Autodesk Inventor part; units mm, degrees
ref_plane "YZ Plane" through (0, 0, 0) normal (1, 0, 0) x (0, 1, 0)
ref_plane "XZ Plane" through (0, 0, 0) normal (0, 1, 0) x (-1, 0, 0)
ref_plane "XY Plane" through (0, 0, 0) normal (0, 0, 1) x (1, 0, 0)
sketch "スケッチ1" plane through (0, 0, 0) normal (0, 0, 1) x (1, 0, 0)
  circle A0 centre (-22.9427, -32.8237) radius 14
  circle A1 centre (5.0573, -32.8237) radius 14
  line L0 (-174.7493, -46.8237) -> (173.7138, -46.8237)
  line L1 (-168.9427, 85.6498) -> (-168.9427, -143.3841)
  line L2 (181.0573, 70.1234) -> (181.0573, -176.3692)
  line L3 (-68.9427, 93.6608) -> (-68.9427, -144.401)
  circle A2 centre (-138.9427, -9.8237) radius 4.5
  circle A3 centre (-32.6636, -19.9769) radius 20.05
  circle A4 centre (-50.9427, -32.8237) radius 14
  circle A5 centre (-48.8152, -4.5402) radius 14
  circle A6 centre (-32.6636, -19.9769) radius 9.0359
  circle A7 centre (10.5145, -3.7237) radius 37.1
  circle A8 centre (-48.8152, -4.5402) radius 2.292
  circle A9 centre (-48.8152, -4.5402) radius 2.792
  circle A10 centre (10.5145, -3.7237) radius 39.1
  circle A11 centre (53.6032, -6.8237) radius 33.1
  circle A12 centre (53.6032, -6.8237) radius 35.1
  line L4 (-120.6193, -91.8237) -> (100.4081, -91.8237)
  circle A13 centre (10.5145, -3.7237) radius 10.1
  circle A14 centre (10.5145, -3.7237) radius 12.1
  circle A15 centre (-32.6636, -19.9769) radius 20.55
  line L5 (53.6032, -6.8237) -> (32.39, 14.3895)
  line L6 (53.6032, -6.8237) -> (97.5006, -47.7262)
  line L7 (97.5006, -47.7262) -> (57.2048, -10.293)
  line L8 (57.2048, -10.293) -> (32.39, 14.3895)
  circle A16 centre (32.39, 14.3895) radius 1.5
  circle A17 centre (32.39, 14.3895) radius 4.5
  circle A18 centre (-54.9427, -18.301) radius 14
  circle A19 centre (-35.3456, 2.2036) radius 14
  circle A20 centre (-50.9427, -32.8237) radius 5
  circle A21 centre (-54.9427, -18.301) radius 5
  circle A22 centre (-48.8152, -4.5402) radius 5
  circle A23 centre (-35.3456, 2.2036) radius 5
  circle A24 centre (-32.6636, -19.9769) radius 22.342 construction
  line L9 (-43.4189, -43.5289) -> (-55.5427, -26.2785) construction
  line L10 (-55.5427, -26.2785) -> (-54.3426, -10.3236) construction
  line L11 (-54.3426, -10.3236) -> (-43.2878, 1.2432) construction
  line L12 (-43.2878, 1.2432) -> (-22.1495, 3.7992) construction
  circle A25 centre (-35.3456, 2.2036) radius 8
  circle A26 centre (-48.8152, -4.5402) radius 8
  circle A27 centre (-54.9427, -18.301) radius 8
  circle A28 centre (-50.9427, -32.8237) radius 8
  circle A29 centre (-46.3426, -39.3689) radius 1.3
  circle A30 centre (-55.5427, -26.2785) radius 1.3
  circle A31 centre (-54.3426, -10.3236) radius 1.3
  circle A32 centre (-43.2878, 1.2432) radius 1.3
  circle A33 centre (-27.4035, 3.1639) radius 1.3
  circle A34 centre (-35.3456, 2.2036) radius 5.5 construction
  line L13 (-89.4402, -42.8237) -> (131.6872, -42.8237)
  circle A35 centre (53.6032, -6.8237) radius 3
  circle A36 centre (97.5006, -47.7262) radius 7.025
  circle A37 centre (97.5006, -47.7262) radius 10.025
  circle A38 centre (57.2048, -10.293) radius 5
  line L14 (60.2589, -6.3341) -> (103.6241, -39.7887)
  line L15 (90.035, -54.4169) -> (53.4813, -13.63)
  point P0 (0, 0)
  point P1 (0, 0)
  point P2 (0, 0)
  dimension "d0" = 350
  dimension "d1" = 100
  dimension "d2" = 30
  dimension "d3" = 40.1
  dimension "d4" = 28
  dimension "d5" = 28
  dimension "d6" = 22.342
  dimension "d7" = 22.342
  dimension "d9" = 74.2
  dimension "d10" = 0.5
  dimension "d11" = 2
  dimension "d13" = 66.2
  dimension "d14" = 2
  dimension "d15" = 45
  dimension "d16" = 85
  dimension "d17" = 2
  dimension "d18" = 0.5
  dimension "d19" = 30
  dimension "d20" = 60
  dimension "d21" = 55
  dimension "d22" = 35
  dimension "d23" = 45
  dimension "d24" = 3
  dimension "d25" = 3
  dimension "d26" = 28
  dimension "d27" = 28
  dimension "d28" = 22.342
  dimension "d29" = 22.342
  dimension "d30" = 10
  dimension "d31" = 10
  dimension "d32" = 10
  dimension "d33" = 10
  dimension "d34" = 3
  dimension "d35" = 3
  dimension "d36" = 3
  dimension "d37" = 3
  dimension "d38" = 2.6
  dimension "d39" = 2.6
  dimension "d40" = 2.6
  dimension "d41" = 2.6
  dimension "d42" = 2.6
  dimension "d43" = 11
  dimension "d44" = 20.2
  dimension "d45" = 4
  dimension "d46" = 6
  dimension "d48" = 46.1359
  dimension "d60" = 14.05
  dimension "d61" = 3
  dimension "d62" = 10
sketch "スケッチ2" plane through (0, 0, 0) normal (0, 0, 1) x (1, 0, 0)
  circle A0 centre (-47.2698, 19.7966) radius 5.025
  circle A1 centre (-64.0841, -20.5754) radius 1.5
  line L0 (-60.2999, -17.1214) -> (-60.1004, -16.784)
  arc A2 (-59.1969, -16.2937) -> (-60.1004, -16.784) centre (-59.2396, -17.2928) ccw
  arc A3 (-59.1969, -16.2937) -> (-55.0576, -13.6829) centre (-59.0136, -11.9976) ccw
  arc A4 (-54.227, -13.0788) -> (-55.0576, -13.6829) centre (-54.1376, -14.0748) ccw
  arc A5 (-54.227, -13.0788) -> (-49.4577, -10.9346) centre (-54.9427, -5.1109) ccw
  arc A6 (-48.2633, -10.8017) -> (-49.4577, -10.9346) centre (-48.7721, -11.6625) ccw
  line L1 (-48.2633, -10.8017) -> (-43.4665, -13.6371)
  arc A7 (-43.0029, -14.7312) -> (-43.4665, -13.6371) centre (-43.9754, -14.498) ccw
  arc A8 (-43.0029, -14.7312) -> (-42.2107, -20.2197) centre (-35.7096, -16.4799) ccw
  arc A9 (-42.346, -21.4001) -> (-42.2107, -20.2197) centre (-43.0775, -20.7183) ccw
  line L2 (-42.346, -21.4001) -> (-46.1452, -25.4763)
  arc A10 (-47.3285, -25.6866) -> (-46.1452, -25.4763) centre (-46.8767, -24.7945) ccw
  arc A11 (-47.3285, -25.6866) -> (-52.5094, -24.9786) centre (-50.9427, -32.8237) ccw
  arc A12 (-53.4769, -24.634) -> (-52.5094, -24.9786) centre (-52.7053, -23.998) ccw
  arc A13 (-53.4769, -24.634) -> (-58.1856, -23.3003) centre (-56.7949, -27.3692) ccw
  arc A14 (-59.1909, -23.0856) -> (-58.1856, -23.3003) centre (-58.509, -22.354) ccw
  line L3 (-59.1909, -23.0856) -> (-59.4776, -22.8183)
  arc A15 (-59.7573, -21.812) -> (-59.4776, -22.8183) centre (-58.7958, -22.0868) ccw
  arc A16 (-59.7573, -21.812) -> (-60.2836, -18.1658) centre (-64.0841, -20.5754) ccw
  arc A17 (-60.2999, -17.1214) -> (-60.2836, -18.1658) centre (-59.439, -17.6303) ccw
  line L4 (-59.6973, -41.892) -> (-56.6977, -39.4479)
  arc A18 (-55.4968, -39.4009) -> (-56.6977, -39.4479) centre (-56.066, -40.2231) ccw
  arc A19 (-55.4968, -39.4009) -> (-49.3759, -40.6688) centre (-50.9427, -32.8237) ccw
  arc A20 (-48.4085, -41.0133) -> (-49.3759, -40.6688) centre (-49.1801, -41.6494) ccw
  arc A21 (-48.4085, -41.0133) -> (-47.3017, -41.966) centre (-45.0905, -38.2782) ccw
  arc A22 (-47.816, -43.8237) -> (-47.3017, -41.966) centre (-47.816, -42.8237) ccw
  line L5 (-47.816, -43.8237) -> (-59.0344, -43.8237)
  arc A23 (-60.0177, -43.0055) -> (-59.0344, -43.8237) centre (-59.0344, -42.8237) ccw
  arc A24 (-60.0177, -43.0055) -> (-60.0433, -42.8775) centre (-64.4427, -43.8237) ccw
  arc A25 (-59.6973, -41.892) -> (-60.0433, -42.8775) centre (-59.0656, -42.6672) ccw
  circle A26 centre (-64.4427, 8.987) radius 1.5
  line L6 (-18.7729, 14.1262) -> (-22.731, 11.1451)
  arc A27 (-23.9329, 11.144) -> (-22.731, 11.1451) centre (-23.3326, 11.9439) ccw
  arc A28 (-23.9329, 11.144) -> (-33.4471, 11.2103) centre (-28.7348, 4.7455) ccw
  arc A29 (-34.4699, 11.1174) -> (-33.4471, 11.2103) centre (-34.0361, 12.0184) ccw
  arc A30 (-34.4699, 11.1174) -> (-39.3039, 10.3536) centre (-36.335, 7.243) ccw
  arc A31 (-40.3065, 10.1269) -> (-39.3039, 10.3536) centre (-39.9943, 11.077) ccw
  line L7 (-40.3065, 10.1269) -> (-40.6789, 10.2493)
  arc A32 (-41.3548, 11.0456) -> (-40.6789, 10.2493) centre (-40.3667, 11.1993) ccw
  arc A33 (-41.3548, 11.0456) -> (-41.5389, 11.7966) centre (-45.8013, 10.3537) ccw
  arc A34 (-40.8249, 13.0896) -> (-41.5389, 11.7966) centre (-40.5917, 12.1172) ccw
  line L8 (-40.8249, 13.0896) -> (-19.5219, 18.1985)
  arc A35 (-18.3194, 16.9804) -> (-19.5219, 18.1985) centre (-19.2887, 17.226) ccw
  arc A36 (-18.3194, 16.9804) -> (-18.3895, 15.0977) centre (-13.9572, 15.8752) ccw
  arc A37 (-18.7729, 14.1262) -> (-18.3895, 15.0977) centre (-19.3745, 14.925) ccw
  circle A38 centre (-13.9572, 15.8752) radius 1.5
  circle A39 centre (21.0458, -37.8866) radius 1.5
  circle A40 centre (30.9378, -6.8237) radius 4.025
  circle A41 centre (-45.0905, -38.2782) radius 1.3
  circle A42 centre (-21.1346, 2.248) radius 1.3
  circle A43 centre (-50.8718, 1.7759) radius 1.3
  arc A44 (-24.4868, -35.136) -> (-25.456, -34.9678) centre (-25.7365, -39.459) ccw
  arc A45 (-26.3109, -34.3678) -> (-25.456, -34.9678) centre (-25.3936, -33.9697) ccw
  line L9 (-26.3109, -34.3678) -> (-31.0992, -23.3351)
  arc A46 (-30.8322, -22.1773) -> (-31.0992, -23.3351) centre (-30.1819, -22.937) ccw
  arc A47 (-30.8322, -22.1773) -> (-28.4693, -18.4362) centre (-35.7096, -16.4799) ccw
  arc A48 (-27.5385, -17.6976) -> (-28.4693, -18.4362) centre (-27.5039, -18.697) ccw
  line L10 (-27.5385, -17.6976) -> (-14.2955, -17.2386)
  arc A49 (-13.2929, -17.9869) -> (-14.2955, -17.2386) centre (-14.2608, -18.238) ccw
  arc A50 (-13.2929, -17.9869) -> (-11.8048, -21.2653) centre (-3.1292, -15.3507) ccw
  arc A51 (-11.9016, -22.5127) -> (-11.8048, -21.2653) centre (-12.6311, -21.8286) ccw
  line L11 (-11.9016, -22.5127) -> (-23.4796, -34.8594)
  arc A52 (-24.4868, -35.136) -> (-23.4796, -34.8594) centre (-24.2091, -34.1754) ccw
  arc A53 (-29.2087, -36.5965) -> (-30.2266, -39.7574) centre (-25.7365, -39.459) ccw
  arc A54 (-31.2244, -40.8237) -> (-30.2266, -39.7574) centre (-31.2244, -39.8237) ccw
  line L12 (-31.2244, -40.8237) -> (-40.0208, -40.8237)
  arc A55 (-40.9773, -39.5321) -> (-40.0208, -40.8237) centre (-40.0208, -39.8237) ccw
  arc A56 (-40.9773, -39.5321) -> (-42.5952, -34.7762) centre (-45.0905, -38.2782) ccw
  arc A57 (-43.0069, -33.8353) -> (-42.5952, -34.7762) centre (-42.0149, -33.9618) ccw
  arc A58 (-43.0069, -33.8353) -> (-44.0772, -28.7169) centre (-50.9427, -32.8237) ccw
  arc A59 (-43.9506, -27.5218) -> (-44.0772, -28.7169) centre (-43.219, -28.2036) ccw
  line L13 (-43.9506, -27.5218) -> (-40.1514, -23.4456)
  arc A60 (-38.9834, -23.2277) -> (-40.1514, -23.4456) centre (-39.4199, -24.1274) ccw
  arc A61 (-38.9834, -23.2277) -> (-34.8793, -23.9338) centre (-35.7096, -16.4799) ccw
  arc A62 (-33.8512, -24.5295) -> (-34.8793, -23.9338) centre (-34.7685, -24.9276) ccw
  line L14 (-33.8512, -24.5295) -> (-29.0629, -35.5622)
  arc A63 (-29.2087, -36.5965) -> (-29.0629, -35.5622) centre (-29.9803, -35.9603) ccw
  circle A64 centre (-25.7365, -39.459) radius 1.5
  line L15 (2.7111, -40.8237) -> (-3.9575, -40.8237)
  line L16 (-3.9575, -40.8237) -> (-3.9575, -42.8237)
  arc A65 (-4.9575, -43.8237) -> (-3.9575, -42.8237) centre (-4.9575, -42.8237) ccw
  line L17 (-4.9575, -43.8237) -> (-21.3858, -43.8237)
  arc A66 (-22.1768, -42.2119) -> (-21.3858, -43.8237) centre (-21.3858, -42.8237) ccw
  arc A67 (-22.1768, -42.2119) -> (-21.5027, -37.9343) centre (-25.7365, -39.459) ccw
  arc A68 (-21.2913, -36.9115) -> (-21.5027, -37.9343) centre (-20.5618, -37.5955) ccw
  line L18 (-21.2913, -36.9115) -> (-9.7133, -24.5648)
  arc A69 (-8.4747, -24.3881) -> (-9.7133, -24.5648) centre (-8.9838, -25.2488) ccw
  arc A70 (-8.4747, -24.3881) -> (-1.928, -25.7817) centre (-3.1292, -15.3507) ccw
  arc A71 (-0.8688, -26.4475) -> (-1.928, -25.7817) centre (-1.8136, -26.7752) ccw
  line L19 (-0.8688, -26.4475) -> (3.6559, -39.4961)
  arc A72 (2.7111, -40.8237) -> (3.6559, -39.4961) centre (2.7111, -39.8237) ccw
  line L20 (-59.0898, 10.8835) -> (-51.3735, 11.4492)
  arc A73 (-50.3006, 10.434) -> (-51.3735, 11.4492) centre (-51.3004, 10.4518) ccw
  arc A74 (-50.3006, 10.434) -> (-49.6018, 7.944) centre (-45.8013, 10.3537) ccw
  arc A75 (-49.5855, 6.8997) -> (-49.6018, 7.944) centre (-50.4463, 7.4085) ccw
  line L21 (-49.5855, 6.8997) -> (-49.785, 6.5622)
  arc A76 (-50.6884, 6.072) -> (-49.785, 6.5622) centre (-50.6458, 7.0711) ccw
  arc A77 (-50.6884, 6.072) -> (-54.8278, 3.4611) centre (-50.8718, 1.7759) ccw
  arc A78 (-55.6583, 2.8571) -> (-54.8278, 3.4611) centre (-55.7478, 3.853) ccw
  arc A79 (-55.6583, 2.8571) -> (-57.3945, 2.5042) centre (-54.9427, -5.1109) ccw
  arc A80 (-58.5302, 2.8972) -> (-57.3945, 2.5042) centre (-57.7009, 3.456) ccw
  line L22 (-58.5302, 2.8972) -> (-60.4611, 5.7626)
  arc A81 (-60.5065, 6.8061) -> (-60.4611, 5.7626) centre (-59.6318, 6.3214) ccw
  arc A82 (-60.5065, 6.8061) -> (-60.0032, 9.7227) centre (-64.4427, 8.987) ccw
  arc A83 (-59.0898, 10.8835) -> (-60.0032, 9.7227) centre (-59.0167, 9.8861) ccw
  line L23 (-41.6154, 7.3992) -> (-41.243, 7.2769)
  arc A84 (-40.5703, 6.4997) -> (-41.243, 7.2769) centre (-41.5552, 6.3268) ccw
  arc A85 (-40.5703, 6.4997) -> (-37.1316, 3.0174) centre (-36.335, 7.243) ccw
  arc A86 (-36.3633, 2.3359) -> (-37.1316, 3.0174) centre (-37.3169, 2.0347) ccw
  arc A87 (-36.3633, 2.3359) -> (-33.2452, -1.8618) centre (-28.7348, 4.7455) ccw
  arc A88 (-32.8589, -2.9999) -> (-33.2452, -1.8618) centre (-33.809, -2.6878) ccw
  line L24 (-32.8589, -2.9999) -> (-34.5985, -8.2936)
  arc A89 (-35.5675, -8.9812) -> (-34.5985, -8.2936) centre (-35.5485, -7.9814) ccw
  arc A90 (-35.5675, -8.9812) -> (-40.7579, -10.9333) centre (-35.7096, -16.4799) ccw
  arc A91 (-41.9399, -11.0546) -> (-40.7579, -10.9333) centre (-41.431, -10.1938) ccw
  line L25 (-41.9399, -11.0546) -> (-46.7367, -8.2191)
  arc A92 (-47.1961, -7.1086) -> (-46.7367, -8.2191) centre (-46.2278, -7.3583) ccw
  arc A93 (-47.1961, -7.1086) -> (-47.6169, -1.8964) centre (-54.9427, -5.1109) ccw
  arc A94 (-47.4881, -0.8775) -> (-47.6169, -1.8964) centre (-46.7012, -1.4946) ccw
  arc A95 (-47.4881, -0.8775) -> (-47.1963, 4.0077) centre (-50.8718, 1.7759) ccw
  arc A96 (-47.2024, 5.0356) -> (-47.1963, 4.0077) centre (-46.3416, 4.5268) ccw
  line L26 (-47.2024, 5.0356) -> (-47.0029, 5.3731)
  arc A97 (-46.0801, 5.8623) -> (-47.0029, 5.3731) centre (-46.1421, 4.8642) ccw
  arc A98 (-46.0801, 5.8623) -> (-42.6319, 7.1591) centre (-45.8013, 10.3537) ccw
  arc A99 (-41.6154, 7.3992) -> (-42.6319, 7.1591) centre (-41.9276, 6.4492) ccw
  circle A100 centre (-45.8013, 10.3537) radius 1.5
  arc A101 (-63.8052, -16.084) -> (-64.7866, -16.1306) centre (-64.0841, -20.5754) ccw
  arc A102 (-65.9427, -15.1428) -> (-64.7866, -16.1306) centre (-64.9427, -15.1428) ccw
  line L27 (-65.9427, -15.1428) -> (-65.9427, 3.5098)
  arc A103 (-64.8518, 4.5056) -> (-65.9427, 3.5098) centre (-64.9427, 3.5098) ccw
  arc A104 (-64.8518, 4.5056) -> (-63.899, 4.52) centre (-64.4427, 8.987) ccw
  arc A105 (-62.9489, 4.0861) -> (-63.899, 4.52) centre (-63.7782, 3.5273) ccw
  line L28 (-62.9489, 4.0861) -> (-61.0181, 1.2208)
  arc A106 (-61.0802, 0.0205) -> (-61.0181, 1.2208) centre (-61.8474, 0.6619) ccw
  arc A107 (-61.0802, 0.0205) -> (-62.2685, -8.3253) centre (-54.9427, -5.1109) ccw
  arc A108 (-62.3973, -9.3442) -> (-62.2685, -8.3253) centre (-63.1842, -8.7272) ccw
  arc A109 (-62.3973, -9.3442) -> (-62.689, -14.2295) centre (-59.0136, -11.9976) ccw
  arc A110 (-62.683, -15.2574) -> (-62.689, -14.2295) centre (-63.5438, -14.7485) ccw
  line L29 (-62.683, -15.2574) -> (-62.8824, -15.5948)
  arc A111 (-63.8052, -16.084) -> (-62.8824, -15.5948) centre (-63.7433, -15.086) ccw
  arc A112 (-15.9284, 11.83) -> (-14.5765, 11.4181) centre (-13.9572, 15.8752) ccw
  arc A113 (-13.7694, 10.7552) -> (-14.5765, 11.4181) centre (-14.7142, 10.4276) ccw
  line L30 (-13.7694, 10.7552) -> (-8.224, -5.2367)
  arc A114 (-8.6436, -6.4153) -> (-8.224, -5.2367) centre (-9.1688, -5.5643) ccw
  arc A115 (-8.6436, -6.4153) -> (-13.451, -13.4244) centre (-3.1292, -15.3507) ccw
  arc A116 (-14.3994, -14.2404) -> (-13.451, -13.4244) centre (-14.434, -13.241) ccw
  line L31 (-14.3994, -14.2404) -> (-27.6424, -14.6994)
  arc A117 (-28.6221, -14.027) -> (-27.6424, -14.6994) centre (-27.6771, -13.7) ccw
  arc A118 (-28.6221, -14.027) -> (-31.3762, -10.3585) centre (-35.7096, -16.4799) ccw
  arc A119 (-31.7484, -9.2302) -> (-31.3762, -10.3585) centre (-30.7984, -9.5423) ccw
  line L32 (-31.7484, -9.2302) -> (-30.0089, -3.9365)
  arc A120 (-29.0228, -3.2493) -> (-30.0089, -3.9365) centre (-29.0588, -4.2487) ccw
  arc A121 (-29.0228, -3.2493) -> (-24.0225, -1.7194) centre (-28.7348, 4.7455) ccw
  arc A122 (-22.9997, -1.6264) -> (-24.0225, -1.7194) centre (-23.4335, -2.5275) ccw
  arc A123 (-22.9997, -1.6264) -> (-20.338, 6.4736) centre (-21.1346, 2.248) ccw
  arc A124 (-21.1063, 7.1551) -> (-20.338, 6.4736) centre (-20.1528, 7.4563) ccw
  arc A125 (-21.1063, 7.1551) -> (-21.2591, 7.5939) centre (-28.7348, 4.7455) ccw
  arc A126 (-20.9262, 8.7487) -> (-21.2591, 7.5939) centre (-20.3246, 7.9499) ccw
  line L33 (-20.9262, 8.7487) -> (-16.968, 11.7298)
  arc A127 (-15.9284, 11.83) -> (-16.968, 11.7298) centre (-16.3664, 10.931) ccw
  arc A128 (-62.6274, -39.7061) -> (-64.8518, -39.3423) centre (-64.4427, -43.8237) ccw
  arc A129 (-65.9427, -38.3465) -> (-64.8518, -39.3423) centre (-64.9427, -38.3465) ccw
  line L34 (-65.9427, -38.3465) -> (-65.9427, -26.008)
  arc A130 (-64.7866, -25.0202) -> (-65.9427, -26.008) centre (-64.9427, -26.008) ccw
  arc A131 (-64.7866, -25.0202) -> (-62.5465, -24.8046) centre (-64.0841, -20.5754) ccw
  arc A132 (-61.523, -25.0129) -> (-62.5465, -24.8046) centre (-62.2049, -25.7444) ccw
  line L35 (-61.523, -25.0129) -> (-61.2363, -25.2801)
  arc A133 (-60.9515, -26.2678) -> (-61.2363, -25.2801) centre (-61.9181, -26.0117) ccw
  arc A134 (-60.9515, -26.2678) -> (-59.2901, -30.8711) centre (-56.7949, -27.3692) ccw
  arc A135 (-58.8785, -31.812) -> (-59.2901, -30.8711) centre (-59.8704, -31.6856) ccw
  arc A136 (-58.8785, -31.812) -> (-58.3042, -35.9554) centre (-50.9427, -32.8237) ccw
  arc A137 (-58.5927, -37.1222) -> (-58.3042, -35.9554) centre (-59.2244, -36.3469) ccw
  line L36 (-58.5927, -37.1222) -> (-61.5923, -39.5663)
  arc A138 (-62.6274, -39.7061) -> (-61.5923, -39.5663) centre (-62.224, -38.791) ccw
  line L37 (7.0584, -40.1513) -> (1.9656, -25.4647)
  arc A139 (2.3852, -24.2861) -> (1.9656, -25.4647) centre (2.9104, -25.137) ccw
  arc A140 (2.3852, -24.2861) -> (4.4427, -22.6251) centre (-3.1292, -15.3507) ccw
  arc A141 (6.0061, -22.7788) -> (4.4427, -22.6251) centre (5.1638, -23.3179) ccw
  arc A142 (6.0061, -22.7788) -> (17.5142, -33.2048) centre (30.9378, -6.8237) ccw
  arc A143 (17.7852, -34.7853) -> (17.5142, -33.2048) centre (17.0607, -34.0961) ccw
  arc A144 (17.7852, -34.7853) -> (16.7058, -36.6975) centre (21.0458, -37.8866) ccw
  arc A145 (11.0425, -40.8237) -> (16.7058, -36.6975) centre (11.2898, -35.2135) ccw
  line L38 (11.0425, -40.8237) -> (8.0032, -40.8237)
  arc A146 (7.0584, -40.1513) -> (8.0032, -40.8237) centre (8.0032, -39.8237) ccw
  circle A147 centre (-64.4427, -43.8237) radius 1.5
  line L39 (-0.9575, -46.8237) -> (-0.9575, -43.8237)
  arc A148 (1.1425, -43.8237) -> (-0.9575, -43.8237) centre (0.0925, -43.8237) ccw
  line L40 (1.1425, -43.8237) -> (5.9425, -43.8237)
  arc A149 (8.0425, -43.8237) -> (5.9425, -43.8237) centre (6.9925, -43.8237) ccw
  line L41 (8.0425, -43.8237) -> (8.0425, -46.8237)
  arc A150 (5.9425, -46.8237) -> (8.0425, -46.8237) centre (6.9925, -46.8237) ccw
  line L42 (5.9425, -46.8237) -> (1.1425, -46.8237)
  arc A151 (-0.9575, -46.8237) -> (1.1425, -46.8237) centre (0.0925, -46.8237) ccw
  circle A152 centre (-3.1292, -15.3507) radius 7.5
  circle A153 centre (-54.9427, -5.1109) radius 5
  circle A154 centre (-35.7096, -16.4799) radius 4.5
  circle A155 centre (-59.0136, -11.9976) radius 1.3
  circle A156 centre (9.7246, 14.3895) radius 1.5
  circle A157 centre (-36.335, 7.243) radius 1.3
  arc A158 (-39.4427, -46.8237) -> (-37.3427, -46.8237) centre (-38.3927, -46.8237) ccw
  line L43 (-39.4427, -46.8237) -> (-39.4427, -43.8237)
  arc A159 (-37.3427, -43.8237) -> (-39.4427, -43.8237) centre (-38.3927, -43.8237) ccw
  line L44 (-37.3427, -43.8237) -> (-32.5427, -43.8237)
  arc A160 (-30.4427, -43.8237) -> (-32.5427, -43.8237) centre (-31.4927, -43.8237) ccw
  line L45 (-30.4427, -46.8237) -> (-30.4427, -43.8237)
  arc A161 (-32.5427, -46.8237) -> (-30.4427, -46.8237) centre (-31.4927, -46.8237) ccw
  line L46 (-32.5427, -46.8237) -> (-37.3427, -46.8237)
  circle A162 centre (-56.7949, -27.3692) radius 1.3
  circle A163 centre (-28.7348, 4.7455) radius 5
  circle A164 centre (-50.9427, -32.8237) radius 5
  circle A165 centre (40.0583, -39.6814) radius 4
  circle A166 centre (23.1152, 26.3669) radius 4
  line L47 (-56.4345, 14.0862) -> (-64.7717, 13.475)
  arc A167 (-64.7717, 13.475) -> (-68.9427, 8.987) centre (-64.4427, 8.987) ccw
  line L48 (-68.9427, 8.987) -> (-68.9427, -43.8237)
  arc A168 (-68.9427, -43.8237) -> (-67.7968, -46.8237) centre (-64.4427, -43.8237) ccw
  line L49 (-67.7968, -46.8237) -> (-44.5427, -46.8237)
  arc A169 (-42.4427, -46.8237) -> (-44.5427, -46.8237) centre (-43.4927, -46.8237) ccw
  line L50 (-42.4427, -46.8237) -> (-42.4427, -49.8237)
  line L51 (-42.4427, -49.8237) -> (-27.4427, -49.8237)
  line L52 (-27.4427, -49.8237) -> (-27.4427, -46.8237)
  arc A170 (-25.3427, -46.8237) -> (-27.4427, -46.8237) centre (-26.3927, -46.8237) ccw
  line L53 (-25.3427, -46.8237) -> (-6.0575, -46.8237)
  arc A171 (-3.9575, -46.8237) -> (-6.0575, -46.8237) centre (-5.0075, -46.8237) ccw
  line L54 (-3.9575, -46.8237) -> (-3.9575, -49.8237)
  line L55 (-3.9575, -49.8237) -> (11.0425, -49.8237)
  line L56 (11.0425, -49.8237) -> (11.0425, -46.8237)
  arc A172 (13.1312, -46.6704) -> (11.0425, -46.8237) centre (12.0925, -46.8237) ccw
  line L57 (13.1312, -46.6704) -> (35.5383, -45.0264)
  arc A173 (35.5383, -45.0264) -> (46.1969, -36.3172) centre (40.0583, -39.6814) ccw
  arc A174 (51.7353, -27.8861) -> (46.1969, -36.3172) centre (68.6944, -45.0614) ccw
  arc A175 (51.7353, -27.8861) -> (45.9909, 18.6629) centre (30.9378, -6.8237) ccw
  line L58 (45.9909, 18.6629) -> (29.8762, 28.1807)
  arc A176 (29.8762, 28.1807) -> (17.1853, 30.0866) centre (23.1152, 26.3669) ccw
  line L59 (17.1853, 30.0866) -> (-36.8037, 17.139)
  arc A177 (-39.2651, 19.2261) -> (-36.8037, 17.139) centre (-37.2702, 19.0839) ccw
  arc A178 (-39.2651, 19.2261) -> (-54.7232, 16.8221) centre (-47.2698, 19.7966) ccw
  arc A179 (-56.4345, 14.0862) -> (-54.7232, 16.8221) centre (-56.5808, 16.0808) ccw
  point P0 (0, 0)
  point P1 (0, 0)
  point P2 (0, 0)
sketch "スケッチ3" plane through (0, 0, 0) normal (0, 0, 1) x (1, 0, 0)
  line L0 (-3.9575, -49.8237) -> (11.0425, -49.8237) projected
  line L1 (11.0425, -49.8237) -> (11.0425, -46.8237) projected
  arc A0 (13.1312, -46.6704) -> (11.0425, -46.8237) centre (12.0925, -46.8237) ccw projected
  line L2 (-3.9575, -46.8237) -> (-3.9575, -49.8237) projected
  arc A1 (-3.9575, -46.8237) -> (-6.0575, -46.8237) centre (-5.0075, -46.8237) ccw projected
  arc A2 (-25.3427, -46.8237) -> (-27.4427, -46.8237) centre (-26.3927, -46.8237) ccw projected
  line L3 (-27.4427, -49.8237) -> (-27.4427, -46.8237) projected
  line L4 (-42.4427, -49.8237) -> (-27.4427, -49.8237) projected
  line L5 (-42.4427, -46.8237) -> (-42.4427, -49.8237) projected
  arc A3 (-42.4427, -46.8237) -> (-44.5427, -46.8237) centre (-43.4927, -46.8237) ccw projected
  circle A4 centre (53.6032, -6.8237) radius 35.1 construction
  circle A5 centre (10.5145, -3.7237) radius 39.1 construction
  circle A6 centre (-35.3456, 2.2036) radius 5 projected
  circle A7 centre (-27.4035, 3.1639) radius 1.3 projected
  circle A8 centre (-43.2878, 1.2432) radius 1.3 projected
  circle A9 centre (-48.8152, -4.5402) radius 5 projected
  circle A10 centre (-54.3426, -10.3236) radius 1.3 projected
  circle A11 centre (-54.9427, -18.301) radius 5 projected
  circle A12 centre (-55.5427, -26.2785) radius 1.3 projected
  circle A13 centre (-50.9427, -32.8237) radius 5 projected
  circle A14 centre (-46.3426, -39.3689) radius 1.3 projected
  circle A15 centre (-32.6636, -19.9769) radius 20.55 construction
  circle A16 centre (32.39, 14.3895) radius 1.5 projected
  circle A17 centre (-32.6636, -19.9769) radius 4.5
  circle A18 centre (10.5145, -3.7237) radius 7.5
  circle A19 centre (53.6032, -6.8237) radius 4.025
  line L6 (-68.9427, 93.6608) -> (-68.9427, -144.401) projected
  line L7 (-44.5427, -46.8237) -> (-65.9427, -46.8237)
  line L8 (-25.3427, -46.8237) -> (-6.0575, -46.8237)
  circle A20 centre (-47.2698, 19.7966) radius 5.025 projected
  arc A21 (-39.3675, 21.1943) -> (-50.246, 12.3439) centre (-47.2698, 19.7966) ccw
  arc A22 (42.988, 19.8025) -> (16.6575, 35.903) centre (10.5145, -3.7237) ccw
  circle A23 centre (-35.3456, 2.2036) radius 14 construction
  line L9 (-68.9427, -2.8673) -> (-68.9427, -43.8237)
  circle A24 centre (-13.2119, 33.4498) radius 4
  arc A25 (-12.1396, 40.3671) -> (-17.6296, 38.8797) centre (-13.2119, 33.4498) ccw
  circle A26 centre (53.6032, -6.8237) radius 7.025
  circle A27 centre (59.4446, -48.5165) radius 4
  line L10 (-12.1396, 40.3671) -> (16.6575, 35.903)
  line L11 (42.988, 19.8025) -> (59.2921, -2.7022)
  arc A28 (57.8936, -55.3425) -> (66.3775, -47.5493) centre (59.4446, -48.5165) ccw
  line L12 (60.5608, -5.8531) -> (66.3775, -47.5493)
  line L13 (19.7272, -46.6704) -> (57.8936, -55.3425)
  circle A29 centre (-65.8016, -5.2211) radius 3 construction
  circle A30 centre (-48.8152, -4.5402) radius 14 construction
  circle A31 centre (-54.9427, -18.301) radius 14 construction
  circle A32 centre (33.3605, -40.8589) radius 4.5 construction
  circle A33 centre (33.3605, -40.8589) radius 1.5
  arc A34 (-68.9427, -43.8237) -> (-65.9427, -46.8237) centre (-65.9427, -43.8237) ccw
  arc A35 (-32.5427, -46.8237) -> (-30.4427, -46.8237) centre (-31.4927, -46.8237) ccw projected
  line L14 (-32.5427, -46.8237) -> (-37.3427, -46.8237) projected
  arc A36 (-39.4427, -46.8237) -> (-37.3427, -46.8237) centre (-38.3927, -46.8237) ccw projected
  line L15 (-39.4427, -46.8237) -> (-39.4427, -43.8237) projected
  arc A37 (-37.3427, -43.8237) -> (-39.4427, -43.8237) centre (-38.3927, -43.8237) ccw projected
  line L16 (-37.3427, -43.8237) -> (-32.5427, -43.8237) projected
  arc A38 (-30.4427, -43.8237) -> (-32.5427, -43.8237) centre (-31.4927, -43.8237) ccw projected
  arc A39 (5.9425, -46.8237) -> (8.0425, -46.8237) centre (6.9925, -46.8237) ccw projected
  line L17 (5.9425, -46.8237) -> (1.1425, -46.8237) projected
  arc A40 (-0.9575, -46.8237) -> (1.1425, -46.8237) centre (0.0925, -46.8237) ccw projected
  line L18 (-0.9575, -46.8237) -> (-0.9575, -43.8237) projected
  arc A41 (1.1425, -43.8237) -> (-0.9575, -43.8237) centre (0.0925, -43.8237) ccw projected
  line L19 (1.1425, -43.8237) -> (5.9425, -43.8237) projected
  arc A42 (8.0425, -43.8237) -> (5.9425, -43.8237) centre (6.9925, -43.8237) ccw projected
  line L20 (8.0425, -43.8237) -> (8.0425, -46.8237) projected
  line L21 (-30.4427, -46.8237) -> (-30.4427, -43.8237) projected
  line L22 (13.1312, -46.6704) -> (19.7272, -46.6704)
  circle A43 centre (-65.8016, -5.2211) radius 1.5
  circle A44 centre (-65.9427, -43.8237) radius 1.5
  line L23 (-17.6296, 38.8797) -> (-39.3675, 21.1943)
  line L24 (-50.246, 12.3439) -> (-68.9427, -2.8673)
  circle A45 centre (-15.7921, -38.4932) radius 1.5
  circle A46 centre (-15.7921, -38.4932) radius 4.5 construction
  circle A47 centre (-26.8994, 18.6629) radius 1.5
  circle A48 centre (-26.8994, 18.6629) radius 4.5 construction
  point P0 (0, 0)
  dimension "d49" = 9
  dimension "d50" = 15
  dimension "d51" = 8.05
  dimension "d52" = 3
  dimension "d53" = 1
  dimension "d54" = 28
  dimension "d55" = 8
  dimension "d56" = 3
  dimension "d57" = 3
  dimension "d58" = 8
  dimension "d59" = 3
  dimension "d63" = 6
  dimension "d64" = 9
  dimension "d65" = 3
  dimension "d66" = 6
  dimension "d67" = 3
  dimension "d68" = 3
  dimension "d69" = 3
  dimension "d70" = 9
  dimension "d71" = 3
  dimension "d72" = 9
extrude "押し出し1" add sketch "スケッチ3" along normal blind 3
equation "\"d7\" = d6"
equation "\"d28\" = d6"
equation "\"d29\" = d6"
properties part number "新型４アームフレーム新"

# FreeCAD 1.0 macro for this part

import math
import FreeCAD as App
import Part
import Sketcher
from FreeCAD import Vector

doc = App.newDocument("Part")
body = doc.addObject("PartDesign::Body", "Body")

# Sketch on XY plane
sketch1 = doc.addObject("Sketcher::SketchObject", "Sketch")
body.addObject(sketch1)
sketch1.AttachmentSupport = (doc.XY_Plane, [""])
sketch1.MapMode = "FlatFace"
sketch1.addGeometry([
    Part.LineSegment(Vector(-3.9575, -46.8237, 0), Vector(-3.9575, -49.8237, 0)),  # 0
    Part.LineSegment(Vector(-3.9575, -49.8237, 0), Vector(11.0425, -49.8237, 0)),  # 1
    Part.LineSegment(Vector(11.0425, -49.8237, 0), Vector(11.0425, -46.8237, 0)),  # 2
    Part.ArcOfCircle(Part.Circle(Vector(12.0925, -46.8237, 0), Vector(0, 0, 1), 1.049952), math.radians(8.39558), math.radians(180)),  # 3
    Part.LineSegment(Vector(13.1312, -46.6704, 0), Vector(19.7272, -46.6704, 0)),  # 4
    Part.LineSegment(Vector(19.7272, -46.6704, 0), Vector(57.8936, -55.3425, 0)),  # 5
    Part.ArcOfCircle(Part.Circle(Vector(59.4446, -48.5165, 0), Vector(0, 0, 1), 6.999991), math.radians(-102.801364), math.radians(7.942001)),  # 6
    Part.LineSegment(Vector(66.3775, -47.5493, 0), Vector(60.5608, -5.8531, 0)),  # 7
    Part.ArcOfCircle(Part.Circle(Vector(53.6032, -6.8237, 0), Vector(0, 0, 1), 7.025), math.radians(7.941631), math.radians(35.922616)),  # 8
    Part.LineSegment(Vector(59.2921, -2.7022, 0), Vector(42.988, 19.8025, 0)),  # 9
    Part.ArcOfCircle(Part.Circle(Vector(10.5145, -3.7237, 0), Vector(0, 0, 1), 40.100004), math.radians(35.922345), math.radians(81.188051)),  # 10
    Part.LineSegment(Vector(16.6575, 35.903, 0), Vector(-12.1396, 40.3671, 0)),  # 11
    Part.ArcOfCircle(Part.Circle(Vector(-13.2119, 33.4498, 0), Vector(0, 0, 1), 6.999919), math.radians(81.188309), math.radians(129.131379)),  # 12
    Part.LineSegment(Vector(-17.6296, 38.8797, 0), Vector(-39.3675, 21.1943, 0)),  # 13
    Part.ArcOfCircle(Part.Circle(Vector(-47.2698, 19.7966, 0), Vector(0, 0, 1), 8.024955), math.radians(10.030314), math.radians(248.23094)),  # 14
    Part.LineSegment(Vector(-50.246, 12.3439, 0), Vector(-68.9427, -2.8673, 0)),  # 15
    Part.LineSegment(Vector(-68.9427, -2.8673, 0), Vector(-68.9427, -43.8237, 0)),  # 16
    Part.ArcOfCircle(Part.Circle(Vector(-65.9427, -43.8237, 0), Vector(0, 0, 1), 3), math.radians(180), math.radians(270)),  # 17
    Part.LineSegment(Vector(-65.9427, -46.8237, 0), Vector(-44.5427, -46.8237, 0)),  # 18
    Part.ArcOfCircle(Part.Circle(Vector(-43.4927, -46.8237, 0), Vector(0, 0, 1), 1.05), math.radians(0), math.radians(180)),  # 19
    Part.LineSegment(Vector(-42.4427, -46.8237, 0), Vector(-42.4427, -49.8237, 0)),  # 20
    Part.LineSegment(Vector(-42.4427, -49.8237, 0), Vector(-27.4427, -49.8237, 0)),  # 21
    Part.LineSegment(Vector(-27.4427, -49.8237, 0), Vector(-27.4427, -46.8237, 0)),  # 22
    Part.ArcOfCircle(Part.Circle(Vector(-26.3927, -46.8237, 0), Vector(0, 0, 1), 1.05), math.radians(0), math.radians(180)),  # 23
    Part.LineSegment(Vector(-25.3427, -46.8237, 0), Vector(-6.0575, -46.8237, 0)),  # 24
    Part.ArcOfCircle(Part.Circle(Vector(-5.0075, -46.8237, 0), Vector(0, 0, 1), 1.05), math.radians(0), math.radians(180)),  # 25
    Part.Circle(Vector(-65.9427, -43.8237, 0), Vector(0, 0, 1), 1.5),  # 26
    Part.Circle(Vector(-46.3426, -39.3689, 0), Vector(0, 0, 1), 1.3),  # 27
    Part.Circle(Vector(-50.9427, -32.8237, 0), Vector(0, 0, 1), 5),  # 28
    Part.ArcOfCircle(Part.Circle(Vector(-31.4927, -46.8237, 0), Vector(0, 0, 1), 1.05), math.radians(180), math.radians(360)),  # 29
    Part.LineSegment(Vector(-32.5427, -46.8237, 0), Vector(-37.3427, -46.8237, 0)),  # 30
    Part.ArcOfCircle(Part.Circle(Vector(-38.3927, -46.8237, 0), Vector(0, 0, 1), 1.05), math.radians(180), math.radians(360)),  # 31
    Part.LineSegment(Vector(-39.4427, -46.8237, 0), Vector(-39.4427, -43.8237, 0)),  # 32
    Part.ArcOfCircle(Part.Circle(Vector(-38.3927, -43.8237, 0), Vector(0, 0, 1), 1.05), math.radians(0), math.radians(180)),  # 33
    Part.LineSegment(Vector(-37.3427, -43.8237, 0), Vector(-32.5427, -43.8237, 0)),  # 34
    Part.ArcOfCircle(Part.Circle(Vector(-31.4927, -43.8237, 0), Vector(0, 0, 1), 1.05), math.radians(0), math.radians(180)),  # 35
    Part.LineSegment(Vector(-30.4427, -43.8237, 0), Vector(-30.4427, -46.8237, 0)),  # 36
    Part.Circle(Vector(-15.7921, -38.4932, 0), Vector(0, 0, 1), 1.5),  # 37
    Part.Circle(Vector(-55.5427, -26.2785, 0), Vector(0, 0, 1), 1.3),  # 38
    Part.Circle(Vector(-54.9427, -18.301, 0), Vector(0, 0, 1), 5),  # 39
    Part.Circle(Vector(-54.3426, -10.3236, 0), Vector(0, 0, 1), 1.3),  # 40
    Part.Circle(Vector(-32.6636, -19.9769, 0), Vector(0, 0, 1), 4.5),  # 41
    Part.ArcOfCircle(Part.Circle(Vector(6.9925, -46.8237, 0), Vector(0, 0, 1), 1.05), math.radians(180), math.radians(360)),  # 42
    Part.LineSegment(Vector(5.9425, -46.8237, 0), Vector(1.1425, -46.8237, 0)),  # 43
    Part.ArcOfCircle(Part.Circle(Vector(0.0925, -46.8237, 0), Vector(0, 0, 1), 1.05), math.radians(180), math.radians(360)),  # 44
    Part.LineSegment(Vector(-0.9575, -46.8237, 0), Vector(-0.9575, -43.8237, 0)),  # 45
    Part.ArcOfCircle(Part.Circle(Vector(0.0925, -43.8237, 0), Vector(0, 0, 1), 1.05), math.radians(0), math.radians(180)),  # 46
    Part.LineSegment(Vector(1.1425, -43.8237, 0), Vector(5.9425, -43.8237, 0)),  # 47
    Part.ArcOfCircle(Part.Circle(Vector(6.9925, -43.8237, 0), Vector(0, 0, 1), 1.05), math.radians(0), math.radians(180)),  # 48
    Part.LineSegment(Vector(8.0425, -43.8237, 0), Vector(8.0425, -46.8237, 0)),  # 49
    Part.Circle(Vector(59.4446, -48.5165, 0), Vector(0, 0, 1), 4),  # 50
    Part.Circle(Vector(33.3605, -40.8589, 0), Vector(0, 0, 1), 1.5),  # 51
    Part.Circle(Vector(-65.8016, -5.2211, 0), Vector(0, 0, 1), 1.5),  # 52
    Part.Circle(Vector(-48.8152, -4.5402, 0), Vector(0, 0, 1), 5),  # 53
    Part.Circle(Vector(-43.2878, 1.2432, 0), Vector(0, 0, 1), 1.3),  # 54
    Part.Circle(Vector(-35.3456, 2.2036, 0), Vector(0, 0, 1), 5),  # 55
    Part.Circle(Vector(-27.4035, 3.1639, 0), Vector(0, 0, 1), 1.3),  # 56
    Part.Circle(Vector(-47.2698, 19.7966, 0), Vector(0, 0, 1), 5.025),  # 57
    Part.Circle(Vector(-26.8994, 18.6629, 0), Vector(0, 0, 1), 1.5),  # 58
    Part.Circle(Vector(-13.2119, 33.4498, 0), Vector(0, 0, 1), 4),  # 59
    Part.Circle(Vector(10.5145, -3.7237, 0), Vector(0, 0, 1), 7.5),  # 60
    Part.Circle(Vector(32.39, 14.3895, 0), Vector(0, 0, 1), 1.5),  # 61
    Part.Circle(Vector(53.6032, -6.8237, 0), Vector(0, 0, 1), 4.025),  # 62
], False)
sketch1.addConstraint([
    Sketcher.Constraint("Coincident", 0, 2, 1, 1),
    Sketcher.Constraint("Coincident", 1, 2, 2, 1),
    Sketcher.Constraint("Coincident", 2, 2, 3, 2),
    Sketcher.Constraint("Coincident", 3, 1, 4, 1),
    Sketcher.Constraint("Coincident", 4, 2, 5, 1),
    Sketcher.Constraint("Coincident", 5, 2, 6, 1),
    Sketcher.Constraint("Coincident", 6, 2, 7, 1),
    Sketcher.Constraint("Coincident", 7, 2, 8, 1),
    Sketcher.Constraint("Coincident", 8, 2, 9, 1),
    Sketcher.Constraint("Coincident", 9, 2, 10, 1),
    Sketcher.Constraint("Coincident", 10, 2, 11, 1),
    Sketcher.Constraint("Coincident", 11, 2, 12, 1),
    Sketcher.Constraint("Coincident", 12, 2, 13, 1),
    Sketcher.Constraint("Coincident", 13, 2, 14, 1),
    Sketcher.Constraint("Coincident", 14, 2, 15, 1),
    Sketcher.Constraint("Coincident", 15, 2, 16, 1),
    Sketcher.Constraint("Coincident", 16, 2, 17, 1),
    Sketcher.Constraint("Coincident", 17, 2, 18, 1),
    Sketcher.Constraint("Coincident", 18, 2, 19, 2),
    Sketcher.Constraint("Coincident", 19, 1, 20, 1),
    Sketcher.Constraint("Coincident", 20, 2, 21, 1),
    Sketcher.Constraint("Coincident", 21, 2, 22, 1),
    Sketcher.Constraint("Coincident", 22, 2, 23, 2),
    Sketcher.Constraint("Coincident", 23, 1, 24, 1),
    Sketcher.Constraint("Coincident", 24, 2, 25, 2),
    Sketcher.Constraint("Coincident", 25, 1, 0, 1),
    Sketcher.Constraint("Coincident", 29, 1, 30, 1),
    Sketcher.Constraint("Coincident", 30, 2, 31, 2),
    Sketcher.Constraint("Coincident", 31, 1, 32, 1),
    Sketcher.Constraint("Coincident", 32, 2, 33, 2),
    Sketcher.Constraint("Coincident", 33, 1, 34, 1),
    Sketcher.Constraint("Coincident", 34, 2, 35, 2),
    Sketcher.Constraint("Coincident", 35, 1, 36, 1),
    Sketcher.Constraint("Coincident", 36, 2, 29, 2),
    Sketcher.Constraint("Coincident", 42, 1, 43, 1),
    Sketcher.Constraint("Coincident", 43, 2, 44, 2),
    Sketcher.Constraint("Coincident", 44, 1, 45, 1),
    Sketcher.Constraint("Coincident", 45, 2, 46, 2),
    Sketcher.Constraint("Coincident", 46, 1, 47, 1),
    Sketcher.Constraint("Coincident", 47, 2, 48, 2),
    Sketcher.Constraint("Coincident", 48, 1, 49, 1),
    Sketcher.Constraint("Coincident", 49, 2, 42, 2),
    Sketcher.Constraint("Vertical", 0),
    Sketcher.Constraint("Horizontal", 1),
    Sketcher.Constraint("Vertical", 2),
    Sketcher.Constraint("Horizontal", 4),
    Sketcher.Constraint("Vertical", 16),
    Sketcher.Constraint("Horizontal", 18),
    Sketcher.Constraint("Vertical", 20),
    Sketcher.Constraint("Horizontal", 21),
    Sketcher.Constraint("Vertical", 22),
    Sketcher.Constraint("Horizontal", 24),
    Sketcher.Constraint("Horizontal", 30),
    Sketcher.Constraint("Vertical", 32),
    Sketcher.Constraint("Horizontal", 34),
    Sketcher.Constraint("Vertical", 36),
    Sketcher.Constraint("Horizontal", 43),
    Sketcher.Constraint("Vertical", 45),
    Sketcher.Constraint("Horizontal", 47),
    Sketcher.Constraint("Vertical", 49),
    Sketcher.Constraint("Coincident", 26, 3, 17, 3),
    Sketcher.Constraint("Coincident", 50, 3, 6, 3),
    Sketcher.Constraint("Coincident", 57, 3, 14, 3),
    Sketcher.Constraint("Coincident", 59, 3, 12, 3),
    Sketcher.Constraint("Coincident", 60, 3, 10, 3),
    Sketcher.Constraint("Coincident", 62, 3, 8, 3),
    Sketcher.Constraint("Diameter", 26, 3.0),
    Sketcher.Constraint("Diameter", 37, 3.0),
    Sketcher.Constraint("Diameter", 41, 9.0),
    Sketcher.Constraint("Diameter", 50, 8.0),
    Sketcher.Constraint("Diameter", 51, 3.0),
    Sketcher.Constraint("Diameter", 52, 3.0),
    Sketcher.Constraint("Diameter", 58, 3.0),
    Sketcher.Constraint("Diameter", 59, 8.0),
    Sketcher.Constraint("Diameter", 60, 15.0),
    Sketcher.Constraint("Diameter", 61, 3.0),
    Sketcher.Constraint("Radius", 17, 3.0),
    Sketcher.Constraint("Diameter", 62, 8.05),
    Sketcher.Constraint("DistanceX", 1, 1, 1, 2, 15.0),
    Sketcher.Constraint("DistanceX", 21, 1, 21, 2, 15.0),
    Sketcher.Constraint("DistanceY", 0, 2, 0, 1, 3.0),
    Sketcher.Constraint("DistanceY", 2, 1, 2, 2, 3.0),
    Sketcher.Constraint("DistanceY", 20, 2, 20, 1, 3.0),
    Sketcher.Constraint("DistanceY", 22, 1, 22, 2, 3.0),
    Sketcher.Constraint("DistanceY", 32, 1, 32, 2, 3.0),
    Sketcher.Constraint("DistanceY", 36, 2, 36, 1, 3.0),
    Sketcher.Constraint("DistanceY", 45, 1, 45, 2, 3.0),
    Sketcher.Constraint("DistanceY", 49, 2, 49, 1, 3.0),
    Sketcher.Constraint("Diameter", 28, 10.0),
    Sketcher.Constraint("Diameter", 39, 10.0),
    Sketcher.Constraint("Diameter", 53, 10.0),
    Sketcher.Constraint("Diameter", 55, 10.0),
    Sketcher.Constraint("Radius", 6, 7.0),
    Sketcher.Constraint("Radius", 12, 7.0),
    Sketcher.Constraint("Diameter", 27, 2.6),
    Sketcher.Constraint("Diameter", 38, 2.6),
    Sketcher.Constraint("Diameter", 40, 2.6),
    Sketcher.Constraint("Diameter", 54, 2.6),
    Sketcher.Constraint("Diameter", 56, 2.6),
    Sketcher.Constraint("Radius", 10, 40.1),
    Sketcher.Constraint("Diameter", 57, 10.05),
    Sketcher.Constraint("Radius", 3, 1.05),
    Sketcher.Constraint("Radius", 19, 1.05),
    Sketcher.Constraint("Radius", 23, 1.05),
    Sketcher.Constraint("Radius", 25, 1.05),
    Sketcher.Constraint("Radius", 29, 1.05),
    Sketcher.Constraint("Radius", 31, 1.05),
    Sketcher.Constraint("Radius", 33, 1.05),
    Sketcher.Constraint("Radius", 35, 1.05),
    Sketcher.Constraint("Radius", 42, 1.05),
    Sketcher.Constraint("Radius", 44, 1.05),
    Sketcher.Constraint("Radius", 46, 1.05),
    Sketcher.Constraint("Radius", 48, 1.05),
    Sketcher.Constraint("DistanceX", 18, 1, 18, 2, 21.4),
    Sketcher.Constraint("DistanceX", 30, 2, 30, 1, 4.8),
    Sketcher.Constraint("DistanceX", 43, 2, 43, 1, 4.8),
    Sketcher.Constraint("Radius", 8, 7.025),
    Sketcher.Constraint("Radius", 14, 8.025),
    Sketcher.Constraint("Distance", 7, 42.1),
    Sketcher.Constraint("Distance", 9, 27.79),
    Sketcher.Constraint("DistanceX", 4, 1, 4, 2, 6.596),
    Sketcher.Constraint("DistanceX", -1, 1, 61, 3, 32.39),
    Sketcher.Constraint("Distance", 11, 29.141),
    Sketcher.Constraint("DistanceX", 24, 1, 24, 2, 19.2852),
    Sketcher.Constraint("DistanceY", 16, 2, 16, 1, 40.9564),
    Sketcher.Constraint("DistanceX", 12, 3, -1, 1, 13.212),
    Sketcher.Constraint("DistanceY", 27, 3, -1, 1, 39.369),
    Sketcher.Constraint("DistanceX", 37, 3, -1, 1, 15.792),
    Sketcher.Constraint("DistanceY", 39, 3, -1, 1, 18.301),
    Sketcher.Constraint("DistanceY", 41, 3, -1, 1, 19.977),
    Sketcher.Constraint("DistanceY", 51, 3, -1, 1, 40.859),
    Sketcher.Constraint("DistanceY", 52, 3, -1, 1, 5.221),
    Sketcher.Constraint("DistanceY", -1, 1, 56, 3, 3.164),
    Sketcher.Constraint("DistanceY", -1, 1, 58, 3, 18.663),
    Sketcher.Constraint("DistanceY", 7, 2, -1, 1, 5.853),
    Sketcher.Constraint("DistanceX", -1, 1, 8, 2, 59.292),
    Sketcher.Constraint("DistanceX", -1, 1, 9, 2, 42.988),
    Sketcher.Constraint("DistanceY", -1, 1, 10, 2, 35.903),
    Sketcher.Constraint("DistanceY", -1, 1, 11, 2, 40.367),
    Sketcher.Constraint("DistanceX", 14, 2, -1, 1, 50.246),
    Sketcher.Constraint("DistanceY", -1, 1, 14, 2, 12.344),
    Sketcher.Constraint("Distance", 5, 39.1392),
    Sketcher.Constraint("Distance", 13, 28.0234),
    Sketcher.Constraint("Distance", 15, 24.1028),
    Sketcher.Constraint("DistanceX", -1, 1, 3, 3, 12.0925),
    Sketcher.Constraint("DistanceY", 3, 3, -1, 1, 46.8237),
    Sketcher.Constraint("DistanceX", -1, 1, 6, 3, 59.4446),
    Sketcher.Constraint("DistanceY", 6, 3, -1, 1, 48.5165),
    Sketcher.Constraint("DistanceX", -1, 1, 8, 3, 53.6032),
    Sketcher.Constraint("DistanceY", 8, 3, -1, 1, 6.8237),
    Sketcher.Constraint("DistanceX", -1, 1, 10, 3, 10.5145),
    Sketcher.Constraint("DistanceX", 14, 3, -1, 1, 47.2698),
    Sketcher.Constraint("DistanceX", 17, 3, -1, 1, 65.9427),
    Sketcher.Constraint("DistanceY", 17, 3, -1, 1, 43.8237),
    Sketcher.Constraint("DistanceY", 19, 3, -1, 1, 46.8237),
    Sketcher.Constraint("DistanceY", 23, 3, -1, 1, 46.8237),
    Sketcher.Constraint("DistanceY", 25, 3, -1, 1, 46.8237),
    Sketcher.Constraint("DistanceX", 27, 3, -1, 1, 46.3426),
    Sketcher.Constraint("DistanceX", 28, 3, -1, 1, 50.9427),
    Sketcher.Constraint("DistanceY", 28, 3, -1, 1, 32.8237),
    Sketcher.Constraint("DistanceX", 29, 3, -1, 1, 31.4927),
    Sketcher.Constraint("DistanceY", 29, 3, -1, 1, 46.8237),
    Sketcher.Constraint("DistanceY", 31, 3, -1, 1, 46.8237),
    Sketcher.Constraint("DistanceY", 33, 3, -1, 1, 43.8237),
    Sketcher.Constraint("DistanceY", 35, 3, -1, 1, 43.8237),
    Sketcher.Constraint("DistanceY", 37, 3, -1, 1, 38.4932),
    Sketcher.Constraint("DistanceX", 38, 3, -1, 1, 55.5427),
    Sketcher.Constraint("DistanceY", 38, 3, -1, 1, 26.2785),
    Sketcher.Constraint("DistanceX", 39, 3, -1, 1, 54.9427),
    Sketcher.Constraint("DistanceX", 40, 3, -1, 1, 54.3426),
    Sketcher.Constraint("DistanceY", 40, 3, -1, 1, 10.3236),
    Sketcher.Constraint("DistanceX", 41, 3, -1, 1, 32.6636),
    Sketcher.Constraint("DistanceX", -1, 1, 42, 3, 6.9925),
    Sketcher.Constraint("DistanceY", 42, 3, -1, 1, 46.8237),
    Sketcher.Constraint("DistanceY", 44, 3, -1, 1, 46.8237),
    Sketcher.Constraint("DistanceY", 46, 3, -1, 1, 43.8237),
    Sketcher.Constraint("DistanceY", 48, 3, -1, 1, 43.8237),
    Sketcher.Constraint("DistanceX", -1, 1, 51, 3, 33.3605),
    Sketcher.Constraint("DistanceX", 52, 3, -1, 1, 65.8016),
    Sketcher.Constraint("DistanceX", 53, 3, -1, 1, 48.8152),
    Sketcher.Constraint("DistanceY", 53, 3, -1, 1, 4.5402),
    Sketcher.Constraint("DistanceX", 54, 3, -1, 1, 43.2878),
    Sketcher.Constraint("DistanceY", -1, 1, 54, 3, 1.2432),
    Sketcher.Constraint("DistanceX", 55, 3, -1, 1, 35.3456),
    Sketcher.Constraint("DistanceY", -1, 1, 55, 3, 2.2036),
    Sketcher.Constraint("DistanceX", 56, 3, -1, 1, 27.4035),
    Sketcher.Constraint("DistanceX", 58, 3, -1, 1, 26.8994),
    Sketcher.Constraint("DistanceY", -1, 1, 61, 3, 14.3895),
    Sketcher.Constraint("DistanceY", 0, 2, -1, 1, 49.8237),
    Sketcher.Constraint("DistanceX", -1, 1, 3, 1, 13.1312),
    Sketcher.Constraint("DistanceX", 12, 2, -1, 1, 17.6296),
    Sketcher.Constraint("DistanceY", 19, 1, -1, 1, 46.8237),
    Sketcher.Constraint("DistanceY", 23, 1, -1, 1, 46.8237),
    Sketcher.Constraint("DistanceY", 29, 1, -1, 1, 46.8237),
    Sketcher.Constraint("DistanceY", 31, 1, -1, 1, 46.8237),
    Sketcher.Constraint("DistanceY", 33, 1, -1, 1, 43.8237),
    Sketcher.Constraint("DistanceY", 35, 1, -1, 1, 43.8237),
    Sketcher.Constraint("DistanceY", 42, 1, -1, 1, 46.8237),
    Sketcher.Constraint("DistanceY", 44, 1, -1, 1, 46.8237),
    Sketcher.Constraint("DistanceY", 46, 1, -1, 1, 43.8237),
    Sketcher.Constraint("DistanceY", 48, 1, -1, 1, 43.8237),
])
pad1 = doc.addObject("PartDesign::Pad", "Pad")
body.addObject(pad1)
pad1.Profile = sketch1
pad1.Length = 3

doc.recompute()
